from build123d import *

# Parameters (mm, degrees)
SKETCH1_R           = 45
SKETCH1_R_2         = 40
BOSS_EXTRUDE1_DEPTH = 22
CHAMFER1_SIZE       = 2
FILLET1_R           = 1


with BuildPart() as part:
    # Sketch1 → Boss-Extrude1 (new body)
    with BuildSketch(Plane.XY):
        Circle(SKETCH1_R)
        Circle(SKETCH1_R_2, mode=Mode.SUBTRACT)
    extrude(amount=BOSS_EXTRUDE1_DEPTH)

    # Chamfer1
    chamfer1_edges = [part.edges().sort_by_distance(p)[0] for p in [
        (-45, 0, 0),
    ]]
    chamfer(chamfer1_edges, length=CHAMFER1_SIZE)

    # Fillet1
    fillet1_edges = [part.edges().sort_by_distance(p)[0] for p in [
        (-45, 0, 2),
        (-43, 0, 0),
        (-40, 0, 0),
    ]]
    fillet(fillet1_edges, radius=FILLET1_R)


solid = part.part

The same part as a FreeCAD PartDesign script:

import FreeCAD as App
import Part
import Sketcher


def edges_at(feature, points):
    """Names of the edges that pass closest to the given points."""
    edges = feature.Shape.Edges
    near = lambda p: min(range(len(edges)), key=lambda i: edges[i].distToShape(Part.Vertex(*p))[0])
    return sorted({f"Edge{near(p) + 1}" for p in points})

doc = App.newDocument("Part")
params = doc.addObject("Spreadsheet::Sheet", "Params")
for row, (alias, value) in enumerate([
    ("sketch1_diameter", "90 mm"),
    ("sketch1_diameter2", "80 mm"),
    ("pad1_length", "22 mm"),
    ("chamfer_size", "2 mm"),
    ("fillet_radius", "1 mm"),
], start=1):
    params.set(f"A{row}", alias)
    params.set(f"B{row}", "=" + value)
    params.setAlias(f"B{row}", alias)

body = doc.addObject("PartDesign::Body", "Body")

# Sketch on XY plane
sketch1 = doc.addObject("Sketcher::SketchObject", "Sketch")
body.addObject(sketch1)
sketch1.AttachmentSupport = (doc.XY_Plane, [""])
sketch1.MapMode = "FlatFace"
sketch1.addGeometry([
    Part.Circle(App.Vector(0, 0, 0), App.Vector(0, 0, 1), 45),
    Part.Circle(App.Vector(0, 0, 0), App.Vector(0, 0, 1), 40),
], False)
sketch1.addConstraint([
    Sketcher.Constraint("Coincident", 0, 3, -1, 1),
    Sketcher.Constraint("Coincident", 1, 3, -1, 1),
    Sketcher.Constraint("Diameter", 0, 90.0),
    Sketcher.Constraint("Diameter", 1, 80.0),
])
sketch1.setExpression("Constraints[2]", "Params.sketch1_diameter")
sketch1.setExpression("Constraints[3]", "Params.sketch1_diameter2")
pad1 = doc.addObject("PartDesign::Pad", "Pad")
body.addObject(pad1)
pad1.Profile = sketch1
pad1.setExpression("Length", "Params.pad1_length")
doc.recompute()

chamfer = doc.addObject("PartDesign::Chamfer", "Chamfer")
body.addObject(chamfer)
chamfer.Base = (pad1, edges_at(pad1, [(-45, 0, 0)]))
chamfer.setExpression("Size", "Params.chamfer_size")
doc.recompute()

fillet = doc.addObject("PartDesign::Fillet", "Fillet")
body.addObject(fillet)
fillet.Base = (chamfer, edges_at(chamfer, [(-45, 0, 2), (-43, 0, 0), (-40, 0, 0)]))
fillet.setExpression("Radius", "Params.fillet_radius")

doc.recompute()
